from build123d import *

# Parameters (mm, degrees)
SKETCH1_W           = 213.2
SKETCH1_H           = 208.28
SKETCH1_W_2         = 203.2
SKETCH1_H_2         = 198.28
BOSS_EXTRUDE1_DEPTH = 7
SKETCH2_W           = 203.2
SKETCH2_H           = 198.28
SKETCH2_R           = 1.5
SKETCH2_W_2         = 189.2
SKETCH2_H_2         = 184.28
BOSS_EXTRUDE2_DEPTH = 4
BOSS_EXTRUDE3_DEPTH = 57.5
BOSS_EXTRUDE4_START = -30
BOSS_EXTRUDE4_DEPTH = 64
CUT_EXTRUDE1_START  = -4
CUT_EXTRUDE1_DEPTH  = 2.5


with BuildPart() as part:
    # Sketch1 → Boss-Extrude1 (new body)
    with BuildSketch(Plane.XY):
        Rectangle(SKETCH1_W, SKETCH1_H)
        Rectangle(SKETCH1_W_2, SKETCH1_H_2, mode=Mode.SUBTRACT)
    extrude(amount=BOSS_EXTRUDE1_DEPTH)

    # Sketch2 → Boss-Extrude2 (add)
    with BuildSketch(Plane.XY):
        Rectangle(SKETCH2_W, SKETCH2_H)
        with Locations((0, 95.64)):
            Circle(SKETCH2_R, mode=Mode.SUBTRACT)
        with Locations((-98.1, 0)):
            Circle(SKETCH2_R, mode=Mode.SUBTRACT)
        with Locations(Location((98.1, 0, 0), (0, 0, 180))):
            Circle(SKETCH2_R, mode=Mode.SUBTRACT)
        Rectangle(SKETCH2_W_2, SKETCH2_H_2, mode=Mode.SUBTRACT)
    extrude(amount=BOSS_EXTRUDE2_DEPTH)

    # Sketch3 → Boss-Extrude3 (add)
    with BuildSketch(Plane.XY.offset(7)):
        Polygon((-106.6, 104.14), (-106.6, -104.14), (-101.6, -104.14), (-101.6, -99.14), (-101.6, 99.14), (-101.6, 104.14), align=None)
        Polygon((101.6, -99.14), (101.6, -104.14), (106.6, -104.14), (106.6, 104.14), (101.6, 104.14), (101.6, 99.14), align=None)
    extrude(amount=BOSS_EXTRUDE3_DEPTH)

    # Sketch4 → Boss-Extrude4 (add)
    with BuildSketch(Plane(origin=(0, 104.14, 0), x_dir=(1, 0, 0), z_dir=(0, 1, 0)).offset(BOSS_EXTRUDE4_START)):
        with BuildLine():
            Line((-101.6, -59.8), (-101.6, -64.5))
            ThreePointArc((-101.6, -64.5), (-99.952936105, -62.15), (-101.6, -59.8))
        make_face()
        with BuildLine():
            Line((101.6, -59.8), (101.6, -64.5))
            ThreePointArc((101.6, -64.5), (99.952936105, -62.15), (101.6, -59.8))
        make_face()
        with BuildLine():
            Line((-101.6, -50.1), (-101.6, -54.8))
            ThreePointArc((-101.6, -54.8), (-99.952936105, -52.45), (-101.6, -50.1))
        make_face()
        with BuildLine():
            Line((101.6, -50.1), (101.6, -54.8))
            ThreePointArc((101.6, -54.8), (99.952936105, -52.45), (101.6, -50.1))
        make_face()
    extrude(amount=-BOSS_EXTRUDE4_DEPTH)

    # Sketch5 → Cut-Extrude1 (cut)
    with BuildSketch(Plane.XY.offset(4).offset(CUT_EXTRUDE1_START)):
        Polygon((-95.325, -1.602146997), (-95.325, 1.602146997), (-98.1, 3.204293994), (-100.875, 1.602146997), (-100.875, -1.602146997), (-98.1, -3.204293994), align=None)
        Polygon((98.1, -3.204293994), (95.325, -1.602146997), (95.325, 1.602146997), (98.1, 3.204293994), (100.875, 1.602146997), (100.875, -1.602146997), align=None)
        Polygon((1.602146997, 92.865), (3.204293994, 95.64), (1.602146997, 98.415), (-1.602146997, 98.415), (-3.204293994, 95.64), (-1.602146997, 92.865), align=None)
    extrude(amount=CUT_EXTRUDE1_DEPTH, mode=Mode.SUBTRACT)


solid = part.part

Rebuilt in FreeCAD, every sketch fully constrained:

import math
import FreeCAD as App
import Part
import Sketcher

V = App.Vector
Q = App.Units.Quantity


def add_polygon(sketch, points):
    """Adds a closed chain of lines whose ends are joined by coincident constraints."""
    first, n = sketch.GeometryCount, len(points)
    for a, b in zip(points, points[1:] + points[:1]):
        sketch.addGeometry(Part.LineSegment(App.Vector(*a, 0), App.Vector(*b, 0)), False)
    for i in range(n):
        sketch.addConstraint(Sketcher.Constraint("Coincident", first + i, 2, first + (i + 1) % n, 1))

doc = App.newDocument("Part")
body = doc.addObject("PartDesign::Body", "Body")

sketch1 = body.newObject("Sketcher::SketchObject", "Sketch")
sketch1.AttachmentSupport = (doc.getObject("XY_Plane"), [""])
sketch1.MapMode = "FlatFace"
add_polygon(sketch1, [(-106.6, 104.14), (-106.6, -104.14), (106.6, -104.14), (106.6, 104.14)])
add_polygon(sketch1, [(101.6, -99.14), (-101.6, -99.14), (-101.6, 99.14), (101.6, 99.14)])
sketch1.addConstraint(Sketcher.Constraint("Vertical", 0))
sketch1.addConstraint(Sketcher.Constraint("Horizontal", 1))
sketch1.addConstraint(Sketcher.Constraint("Vertical", 2))
sketch1.addConstraint(Sketcher.Constraint("Horizontal", 3))
sketch1.addConstraint(Sketcher.Constraint("Horizontal", 4))
sketch1.addConstraint(Sketcher.Constraint("Vertical", 5))
sketch1.addConstraint(Sketcher.Constraint("Horizontal", 6))
sketch1.addConstraint(Sketcher.Constraint("Vertical", 7))
sketch1.addConstraint(Sketcher.Constraint("Symmetric", 0, 2, 2, 2, -1, 1))
sketch1.addConstraint(Sketcher.Constraint("Symmetric", 4, 2, 6, 2, -1, 1))
sketch1.addConstraint(Sketcher.Constraint("DistanceX", 1, 1, 1, 2, Q("213.2 mm")))
sketch1.addConstraint(Sketcher.Constraint("DistanceX", 4, 2, 4, 1, Q("203.2 mm")))
sketch1.addConstraint(Sketcher.Constraint("DistanceY", 0, 2, 4, 2, Q("5 mm")))
sketch1.addConstraint(Sketcher.Constraint("DistanceY", 0, 2, 0, 1, Q("208.28 mm")))
pad1 = body.newObject("PartDesign::Pad", "Pad")
pad1.Profile = sketch1
pad1.Length = 7

sketch2 = body.newObject("Sketcher::SketchObject", "Sketch001")
sketch2.AttachmentSupport = (doc.getObject("XY_Plane"), [""])
sketch2.MapMode = "FlatFace"
add_polygon(sketch2, [(-101.6, 99.14), (-101.6, -99.14), (101.6, -99.14), (101.6, 99.14)])
sketch2.addGeometry(Part.Circle(V(-98.1, 0, 0), V(0, 0, 1), 1.5), False)
add_polygon(sketch2, [(94.6, -92.14), (-94.6, -92.14), (-94.6, 92.14), (94.6, 92.14)])
sketch2.addGeometry(Part.Circle(V(98.1, 0, 0), V(0, 0, 1), 1.5), False)
sketch2.addGeometry(Part.Circle(V(0, 95.64, 0), V(0, 0, 1), 1.5), False)
sketch2.addConstraint(Sketcher.Constraint("Vertical", 0))
sketch2.addConstraint(Sketcher.Constraint("Horizontal", 1))
sketch2.addConstraint(Sketcher.Constraint("Vertical", 2))
sketch2.addConstraint(Sketcher.Constraint("Horizontal", 3))
sketch2.addConstraint(Sketcher.Constraint("Horizontal", 5))
sketch2.addConstraint(Sketcher.Constraint("Vertical", 6))
sketch2.addConstraint(Sketcher.Constraint("Horizontal", 7))
sketch2.addConstraint(Sketcher.Constraint("Vertical", 8))
sketch2.addConstraint(Sketcher.Constraint("Equal", 4, 9))
sketch2.addConstraint(Sketcher.Constraint("Equal", 9, 10))
sketch2.addConstraint(Sketcher.Constraint("Symmetric", 4, 3, 9, 3, -1, 1))
sketch2.addConstraint(Sketcher.Constraint("Symmetric", 0, 2, 2, 2, -1, 1))
sketch2.addConstraint(Sketcher.Constraint("Symmetric", 5, 2, 7, 2, -1, 1))
sketch2.addConstraint(Sketcher.Constraint("PointOnObject", 4, 3, -1))
sketch2.addConstraint(Sketcher.Constraint("PointOnObject", 10, 3, -2))
sketch2.addConstraint(Sketcher.Constraint("Diameter", 4, Q("3 mm")))
sketch2.addConstraint(Sketcher.Constraint("DistanceX", 1, 1, 1, 2, Q("203.2 mm")))
sketch2.addConstraint(Sketcher.Constraint("DistanceX", 5, 2, 5, 1, Q("189.2 mm")))
sketch2.addConstraint(Sketcher.Constraint("DistanceY", 0, 2, 5, 2, Q("7 mm")))
sketch2.addConstraint(Sketcher.Constraint("DistanceY", 0, 2, 0, 1, Q("198.28 mm")))
sketch2.addConstraint(Sketcher.Constraint("DistanceX", 4, 3, -1, 1, Q("98.1 mm")))
sketch2.addConstraint(Sketcher.Constraint("DistanceY", 10, 3, 2, 2, Q("3.5 mm")))
pad2 = body.newObject("PartDesign::Pad", "Pad001")
pad2.Profile = sketch2
pad2.Length = 4

sketch3 = body.newObject("Sketcher::SketchObject", "Sketch002")
sketch3.AttachmentSupport = (doc.getObject("XY_Plane"), [""])
sketch3.MapMode = "FlatFace"
sketch3.AttachmentOffset = App.Placement(V(0, 0, 7), App.Rotation())
add_polygon(sketch3, [(-106.6, 104.14), (-106.6, -104.14), (-101.6, -104.14), (-101.6, 104.14)])
add_polygon(sketch3, [(101.6, -104.14), (106.6, -104.14), (106.6, 104.14), (101.6, 104.14)])
sketch3.addConstraint(Sketcher.Constraint("Vertical", 0))
sketch3.addConstraint(Sketcher.Constraint("Horizontal", 1))
sketch3.addConstraint(Sketcher.Constraint("Vertical", 2))
sketch3.addConstraint(Sketcher.Constraint("Horizontal", 3))
sketch3.addConstraint(Sketcher.Constraint("Horizontal", 4))
sketch3.addConstraint(Sketcher.Constraint("Vertical", 5))
sketch3.addConstraint(Sketcher.Constraint("Horizontal", 6))
sketch3.addConstraint(Sketcher.Constraint("Vertical", 7))
sketch3.addConstraint(Sketcher.Constraint("Symmetric", 3, 2, 4, 2, -1, 1))
sketch3.addConstraint(Sketcher.Constraint("Symmetric", 1, 2, 6, 2, -1, 1))
sketch3.addConstraint(Sketcher.Constraint("Horizontal", 1, 2, 4, 2))
sketch3.addConstraint(Sketcher.Constraint("DistanceX", 1, 1, 1, 2, Q("5 mm")))
sketch3.addConstraint(Sketcher.Constraint("DistanceY", 0, 2, 0, 1, Q("208.28 mm")))
sketch3.addConstraint(Sketcher.Constraint("DistanceX", 0, 2, -1, 1, Q("106.6 mm")))
pad3 = body.newObject("PartDesign::Pad", "Pad002")
pad3.Profile = sketch3
pad3.Length = 57.5

sketch4 = body.newObject("Sketcher::SketchObject", "Sketch003")
sketch4.AttachmentSupport = (doc.getObject("XZ_Plane"), [""])
sketch4.MapMode = "FlatFace"
sketch4.AttachmentOffset = App.Placement(V(0, 0, -74.14), App.Rotation())
sketch4.addGeometry(Part.LineSegment(V(-101.6, 59.8, 0), V(-101.6, 64.5, 0)), False)
sketch4.addGeometry(Part.ArcOfCircle(Part.Circle(V(-102.452936, 62.15, 0), V(0, 0, 1), 2.5), math.radians(-70.051556), math.radians(70.051556)), False)
sketch4.addGeometry(Part.LineSegment(V(101.6, 64.5, 0), V(101.6, 59.8, 0)), False)
sketch4.addGeometry(Part.ArcOfCircle(Part.Circle(V(102.452936, 62.15, 0), V(0, 0, 1), 2.5), math.radians(109.948444), math.radians(250.051556)), False)
sketch4.addGeometry(Part.LineSegment(V(-101.6, 50.1, 0), V(-101.6, 54.8, 0)), False)
sketch4.addGeometry(Part.ArcOfCircle(Part.Circle(V(-102.452936, 52.45, 0), V(0, 0, 1), 2.5), math.radians(-70.051556), math.radians(70.051556)), False)
sketch4.addGeometry(Part.LineSegment(V(101.6, 54.8, 0), V(101.6, 50.1, 0)), False)
sketch4.addGeometry(Part.ArcOfCircle(Part.Circle(V(102.452936, 52.45, 0), V(0, 0, 1), 2.5), math.radians(109.948444), math.radians(250.051556)), False)
sketch4.addConstraint(Sketcher.Constraint("Coincident", 0, 1, 1, 1))
sketch4.addConstraint(Sketcher.Constraint("Coincident", 1, 2, 0, 2))
sketch4.addConstraint(Sketcher.Constraint("Coincident", 2, 1, 3, 1))
sketch4.addConstraint(Sketcher.Constraint("Coincident", 3, 2, 2, 2))
sketch4.addConstraint(Sketcher.Constraint("Coincident", 4, 1, 5, 1))
sketch4.addConstraint(Sketcher.Constraint("Coincident", 5, 2, 4, 2))
sketch4.addConstraint(Sketcher.Constraint("Coincident", 6, 1, 7, 1))
sketch4.addConstraint(Sketcher.Constraint("Coincident", 7, 2, 6, 2))
sketch4.addConstraint(Sketcher.Constraint("Vertical", 0))
sketch4.addConstraint(Sketcher.Constraint("Vertical", 2))
sketch4.addConstraint(Sketcher.Constraint("Vertical", 4))
sketch4.addConstraint(Sketcher.Constraint("Vertical", 6))
sketch4.addConstraint(Sketcher.Constraint("Equal", 1, 3))
sketch4.addConstraint(Sketcher.Constraint("Equal", 3, 5))
sketch4.addConstraint(Sketcher.Constraint("Equal", 5, 7))
sketch4.addConstraint(Sketcher.Constraint("Symmetric", 1, 3, 3, 3, -2))
sketch4.addConstraint(Sketcher.Constraint("Symmetric", 5, 3, 7, 3, -2))
sketch4.addConstraint(Sketcher.Constraint("Horizontal", 1, 2, 2, 1))
sketch4.addConstraint(Sketcher.Constraint("Horizontal", 5, 2, 6, 1))
sketch4.addConstraint(Sketcher.Constraint("Vertical", 1, 3, 5, 3))
sketch4.addConstraint(Sketcher.Constraint("Vertical", 1, 2, 4, 1))
sketch4.addConstraint(Sketcher.Constraint("Radius", 1, Q("2.5 mm")))
sketch4.addConstraint(Sketcher.Constraint("DistanceY", 0, 1, 0, 2, Q("4.7 mm")))
sketch4.addConstraint(Sketcher.Constraint("DistanceY", 5, 2, 0, 1, Q("5 mm")))
sketch4.addConstraint(Sketcher.Constraint("DistanceX", 0, 1, -1, 1, Q("101.6 mm")))
sketch4.addConstraint(Sketcher.Constraint("DistanceY", -1, 1, 0, 1, Q("59.8 mm")))
pad4 = body.newObject("PartDesign::Pad", "Pad003")
pad4.Profile = sketch4
pad4.Length = 64

sketch5 = body.newObject("Sketcher::SketchObject", "Sketch004")
sketch5.AttachmentSupport = (doc.getObject("XY_Plane"), [""])
sketch5.MapMode = "FlatFace"
add_polygon(sketch5, [(-95.325, -1.602147), (-95.325, 1.602147), (-98.1, 3.204294), (-100.875, 1.602147), (-100.875, -1.602147), (-98.1, -3.204294)])
add_polygon(sketch5, [(95.325, -1.602147), (98.1, -3.204294), (100.875, -1.602147), (100.875, 1.602147), (98.1, 3.204294), (95.325, 1.602147)])
add_polygon(sketch5, [(1.602147, 92.865), (3.204294, 95.64), (1.602147, 98.415), (-1.602147, 98.415), (-3.204294, 95.64), (-1.602147, 92.865)])
sketch5.addConstraint(Sketcher.Constraint("Vertical", 0))
sketch5.addConstraint(Sketcher.Constraint("Vertical", 3))
sketch5.addConstraint(Sketcher.Constraint("Vertical", 8))
sketch5.addConstraint(Sketcher.Constraint("Vertical", 11))
sketch5.addConstraint(Sketcher.Constraint("Horizontal", 14))
sketch5.addConstraint(Sketcher.Constraint("Horizontal", 17))
sketch5.addConstraint(Sketcher.Constraint("Symmetric", 1, 2, 6, 2, -1, 1))
sketch5.addConstraint(Sketcher.Constraint("Symmetric", 2, 2, 7, 2, -1, 1))
sketch5.addConstraint(Sketcher.Constraint("Symmetric", 4, 2, 9, 2, -1, 1))
sketch5.addConstraint(Sketcher.Constraint("Symmetric", 5, 2, 10, 2, -1, 1))
sketch5.addConstraint(Sketcher.Constraint("Symmetric", 4, 2, 6, 2, -2))
sketch5.addConstraint(Sketcher.Constraint("Symmetric", 12, 2, 15, 2, -2))
sketch5.addConstraint(Sketcher.Constraint("Parallel", 1, 4))
sketch5.addConstraint(Sketcher.Constraint("Parallel", 2, 5))
sketch5.addConstraint(Sketcher.Constraint("Parallel", 4, 6))
sketch5.addConstraint(Sketcher.Constraint("Parallel", 6, 9))
sketch5.addConstraint(Sketcher.Constraint("Perpendicular", 9, 12))
sketch5.addConstraint(Sketcher.Constraint("Perpendicular", 10, 13))
sketch5.addConstraint(Sketcher.Constraint("Parallel", 12, 15))
sketch5.addConstraint(Sketcher.Constraint("Parallel", 13, 16))
sketch5.addConstraint(Sketcher.Constraint("Horizontal", 0, 2, 2, 2))
sketch5.addConstraint(Sketcher.Constraint("Horizontal", 3, 2, 5, 2))
sketch5.addConstraint(Sketcher.Constraint("Vertical", 14, 2, 16, 2))
sketch5.addConstraint(Sketcher.Constraint("Equal", 17, 0))
sketch5.addConstraint(Sketcher.Constraint("Equal", 10, 12))
sketch5.addConstraint(Sketcher.Constraint("Angle", 1, Q("150 deg")))
sketch5.addConstraint(Sketcher.Constraint("DistanceX", 1, 2, -1, 1, Q("98.1 mm")))
sketch5.addConstraint(Sketcher.Constraint("DistanceY", -1, 1, 12, 2, Q("95.64 mm")))
sketch5.addConstraint(Sketcher.Constraint("DistanceX", 2, 2, 0, 2, Q("5.55 mm")))
sketch5.addConstraint(Sketcher.Constraint("DistanceX", 14, 2, 14, 1, Q("3.204294 mm")))
pocket1 = body.newObject("PartDesign::Pocket", "Pocket")
pocket1.Profile = sketch5
pocket1.Length = 2.5
pocket1.Reversed = True

doc.recompute()
